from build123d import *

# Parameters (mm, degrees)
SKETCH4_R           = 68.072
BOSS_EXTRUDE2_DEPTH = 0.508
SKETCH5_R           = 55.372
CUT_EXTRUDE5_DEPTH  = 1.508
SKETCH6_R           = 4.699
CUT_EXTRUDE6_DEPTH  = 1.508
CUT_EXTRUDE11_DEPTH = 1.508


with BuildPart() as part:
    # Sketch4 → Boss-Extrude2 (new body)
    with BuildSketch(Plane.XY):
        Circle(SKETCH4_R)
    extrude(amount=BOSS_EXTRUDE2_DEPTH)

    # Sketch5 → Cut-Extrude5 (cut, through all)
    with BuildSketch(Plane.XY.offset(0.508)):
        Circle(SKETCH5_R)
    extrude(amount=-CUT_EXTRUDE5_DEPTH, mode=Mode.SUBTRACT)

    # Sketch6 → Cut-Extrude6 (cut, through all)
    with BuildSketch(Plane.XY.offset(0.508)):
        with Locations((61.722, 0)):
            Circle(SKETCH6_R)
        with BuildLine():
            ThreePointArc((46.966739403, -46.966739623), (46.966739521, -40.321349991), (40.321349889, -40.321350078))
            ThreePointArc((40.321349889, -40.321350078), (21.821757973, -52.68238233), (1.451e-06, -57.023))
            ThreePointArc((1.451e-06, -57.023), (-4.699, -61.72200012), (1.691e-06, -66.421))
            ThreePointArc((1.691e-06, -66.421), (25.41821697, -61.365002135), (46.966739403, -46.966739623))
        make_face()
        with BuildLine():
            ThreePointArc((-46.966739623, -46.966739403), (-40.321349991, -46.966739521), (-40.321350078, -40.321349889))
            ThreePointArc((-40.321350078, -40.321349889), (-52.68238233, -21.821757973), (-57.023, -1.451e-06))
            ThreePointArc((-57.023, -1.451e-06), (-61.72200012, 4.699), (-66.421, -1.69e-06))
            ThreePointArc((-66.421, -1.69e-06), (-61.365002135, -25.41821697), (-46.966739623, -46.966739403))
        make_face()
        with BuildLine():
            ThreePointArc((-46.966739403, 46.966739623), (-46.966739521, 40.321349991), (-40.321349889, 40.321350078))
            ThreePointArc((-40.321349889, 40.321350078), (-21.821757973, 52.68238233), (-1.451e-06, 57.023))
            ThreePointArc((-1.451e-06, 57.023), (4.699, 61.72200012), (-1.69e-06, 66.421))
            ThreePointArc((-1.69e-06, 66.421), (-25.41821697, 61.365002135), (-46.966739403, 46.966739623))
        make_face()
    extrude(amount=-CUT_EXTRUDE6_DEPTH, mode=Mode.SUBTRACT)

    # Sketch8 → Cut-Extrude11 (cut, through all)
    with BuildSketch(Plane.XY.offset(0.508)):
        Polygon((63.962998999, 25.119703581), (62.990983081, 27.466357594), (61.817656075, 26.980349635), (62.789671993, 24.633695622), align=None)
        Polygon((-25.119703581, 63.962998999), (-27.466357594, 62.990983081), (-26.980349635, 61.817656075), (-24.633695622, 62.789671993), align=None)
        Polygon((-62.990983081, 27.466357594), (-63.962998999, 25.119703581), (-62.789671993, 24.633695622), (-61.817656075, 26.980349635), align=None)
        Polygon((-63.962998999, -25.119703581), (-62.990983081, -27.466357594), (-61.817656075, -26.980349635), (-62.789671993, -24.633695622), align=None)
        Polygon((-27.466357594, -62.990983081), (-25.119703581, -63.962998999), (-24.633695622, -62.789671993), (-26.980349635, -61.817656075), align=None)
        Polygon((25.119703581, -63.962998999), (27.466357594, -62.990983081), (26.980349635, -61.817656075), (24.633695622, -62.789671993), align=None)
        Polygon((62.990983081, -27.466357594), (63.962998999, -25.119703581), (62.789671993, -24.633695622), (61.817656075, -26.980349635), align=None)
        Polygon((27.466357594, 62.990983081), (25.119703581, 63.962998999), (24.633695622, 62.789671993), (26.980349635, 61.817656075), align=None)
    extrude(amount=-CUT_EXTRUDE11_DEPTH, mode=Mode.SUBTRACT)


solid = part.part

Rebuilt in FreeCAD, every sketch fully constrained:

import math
import FreeCAD as App
import Part
import Sketcher

V = App.Vector
Q = App.Units.Quantity

doc = App.newDocument("Part")
body = doc.addObject("PartDesign::Body", "Body")

sketch1 = body.newObject("Sketcher::SketchObject", "Sketch")
sketch1.AttachmentSupport = (doc.getObject("XY_Plane"), [""])
sketch1.MapMode = "FlatFace"
sketch1.addGeometry(Part.Circle(V(0, 0, 0), V(0, 0, 1), 68), False)
sketch1.addConstraint([
    Sketcher.Constraint("Coincident", 0, 3, -1, 1),
    Sketcher.Constraint("Diameter", 0, Q("5.36 in")),
])
pad1 = body.newObject("PartDesign::Pad", "Pad")
pad1.Profile = sketch1
pad1.Length = Q("0.02 in")

sketch2 = body.newObject("Sketcher::SketchObject", "Sketch001")
sketch2.AttachmentSupport = (doc.getObject("XY_Plane"), [""])
sketch2.MapMode = "FlatFace"
sketch2.AttachmentOffset = App.Placement(V(0, 0, 0.02 * 25.4), App.Rotation())
sketch2.addGeometry(Part.Circle(V(0, 0, 0), V(0, 0, 1), 55), False)
sketch2.addConstraint([
    Sketcher.Constraint("Coincident", 0, 3, -1, 1),
    Sketcher.Constraint("Diameter", 0, Q("4.36 in")),
])
pocket1 = body.newObject("PartDesign::Pocket", "Pocket")
pocket1.Profile = sketch2
pocket1.Type = "ThroughAll"

sketch3 = body.newObject("Sketcher::SketchObject", "Sketch002")
sketch3.AttachmentSupport = (doc.getObject("XY_Plane"), [""])
sketch3.MapMode = "FlatFace"
sketch3.AttachmentOffset = App.Placement(V(0, 0, 0.02 * 25.4), App.Rotation())
sketch3.addGeometry([
    Part.Circle(V(61.7, 0, 0), V(0, 0, 1), 4.7),
    Part.ArcOfCircle(Part.Circle(V(43.6, -43.6, 0), V(0, 0, 1), 4.7), math.radians(-45), math.radians(135)),
    Part.ArcOfCircle(Part.Circle(V(0, 0, 0), V(0, 0, 1), 57), math.radians(-90), math.radians(-45)),
    Part.ArcOfCircle(Part.Circle(V(0, -61.7, 0), V(0, 0, 1), 4.7), math.radians(90), math.radians(270)),
    Part.ArcOfCircle(Part.Circle(V(0, 0, 0), V(0, 0, 1), 66.4), math.radians(-90), math.radians(-45)),
    Part.ArcOfCircle(Part.Circle(V(-43.6, -43.6, 0), V(0, 0, 1), 4.7), math.radians(-135), math.radians(45)),
    Part.ArcOfCircle(Part.Circle(V(0, 0, 0), V(0, 0, 1), 57), math.radians(-180), math.radians(-135)),
    Part.ArcOfCircle(Part.Circle(V(-61.7, 0, 0), V(0, 0, 1), 4.7), math.radians(0), math.radians(180)),
    Part.ArcOfCircle(Part.Circle(V(0, 0, 0), V(0, 0, 1), 66.4), math.radians(-180), math.radians(-135)),
    Part.ArcOfCircle(Part.Circle(V(-43.6, 43.6, 0), V(0, 0, 1), 4.7), math.radians(135), math.radians(315)),
    Part.ArcOfCircle(Part.Circle(V(0, 0, 0), V(0, 0, 1), 57), math.radians(90), math.radians(135)),
    Part.ArcOfCircle(Part.Circle(V(0, 61.7, 0), V(0, 0, 1), 4.7), math.radians(-90), math.radians(90)),
    Part.ArcOfCircle(Part.Circle(V(0, 0, 0), V(0, 0, 1), 66.4), math.radians(90), math.radians(135)),
], False)
sketch3.addConstraint([
    Sketcher.Constraint("Tangent", 1, 2, 2, 2),
    Sketcher.Constraint("Tangent", 2, 1, 3, 1),
    Sketcher.Constraint("Tangent", 3, 2, 4, 1),
    Sketcher.Constraint("Tangent", 4, 2, 1, 1),
    Sketcher.Constraint("Tangent", 5, 2, 6, 2),
    Sketcher.Constraint("Tangent", 6, 1, 7, 1),
    Sketcher.Constraint("Tangent", 7, 2, 8, 1),
    Sketcher.Constraint("Tangent", 8, 2, 5, 1),
    Sketcher.Constraint("Tangent", 9, 2, 10, 2),
    Sketcher.Constraint("Tangent", 10, 1, 11, 1),
    Sketcher.Constraint("Tangent", 11, 2, 12, 1),
    Sketcher.Constraint("Tangent", 12, 2, 9, 1),
    Sketcher.Constraint("Coincident", 2, 3, -1, 1),
    Sketcher.Constraint("Coincident", 4, 3, -1, 1),
    Sketcher.Constraint("Coincident", 6, 3, -1, 1),
    Sketcher.Constraint("Coincident", 8, 3, -1, 1),
    Sketcher.Constraint("Coincident", 10, 3, -1, 1),
    Sketcher.Constraint("Coincident", 12, 3, -1, 1),
    Sketcher.Constraint("Equal", 0, 1),
    Sketcher.Constraint("Equal", 3, 5),
    Sketcher.Constraint("Equal", 2, 6),
    Sketcher.Constraint("Equal", 7, 9),
    Sketcher.Constraint("Equal", 6, 10),
    Sketcher.Constraint("Symmetric", 0, 3, 7, 3, -1, 1),
    Sketcher.Constraint("PointOnObject", 0, 3, -1),
    Sketcher.Constraint("PointOnObject", 3, 3, -2),
    Sketcher.Constraint("PointOnObject", 11, 3, -2),
    Sketcher.Constraint("Horizontal", 1, 3, 5, 3),
    Sketcher.Constraint("Vertical", 5, 3, 9, 3),
    Sketcher.Constraint("Diameter", 0, Q("0.37 in")),
    Sketcher.Constraint("Radius", 2, Q("2.245 in")),
    Sketcher.Constraint("DistanceX", -1, 1, 1, 2, 40.32135),
])
pocket2 = body.newObject("PartDesign::Pocket", "Pocket001")
pocket2.Profile = sketch3
pocket2.Type = "ThroughAll"

sketch4 = body.newObject("Sketcher::SketchObject", "Sketch003")
sketch4.AttachmentSupport = (doc.getObject("XY_Plane"), [""])
sketch4.MapMode = "FlatFace"
sketch4.AttachmentOffset = App.Placement(V(0, 0, 0.02 * 25.4), App.Rotation())
sketch4.addGeometry([
    Part.LineSegment(V(64, 25.1, 0), V(63, 27.5, 0)),
    Part.LineSegment(V(63, 27.5, 0), V(61.8, 27, 0)),
    Part.LineSegment(V(61.8, 27, 0), V(62.8, 24.6, 0)),
    Part.LineSegment(V(62.8, 24.6, 0), V(64, 25.1, 0)),
    Part.LineSegment(V(-25.1, 64, 0), V(-27.5, 63, 0)),
    Part.LineSegment(V(-27.5, 63, 0), V(-27, 61.8, 0)),
    Part.LineSegment(V(-27, 61.8, 0), V(-24.6, 62.8, 0)),
    Part.LineSegment(V(-24.6, 62.8, 0), V(-25.1, 64, 0)),
    Part.LineSegment(V(-63, 27.5, 0), V(-64, 25.1, 0)),
    Part.LineSegment(V(-64, 25.1, 0), V(-62.8, 24.6, 0)),
    Part.LineSegment(V(-62.8, 24.6, 0), V(-61.8, 27, 0)),
    Part.LineSegment(V(-61.8, 27, 0), V(-63, 27.5, 0)),
    Part.LineSegment(V(-64, -25.1, 0), V(-63, -27.5, 0)),
    Part.LineSegment(V(-63, -27.5, 0), V(-61.8, -27, 0)),
    Part.LineSegment(V(-61.8, -27, 0), V(-62.8, -24.6, 0)),
    Part.LineSegment(V(-62.8, -24.6, 0), V(-64, -25.1, 0)),
    Part.LineSegment(V(-27.5, -63, 0), V(-25.1, -64, 0)),
    Part.LineSegment(V(-25.1, -64, 0), V(-24.6, -62.8, 0)),
    Part.LineSegment(V(-24.6, -62.8, 0), V(-27, -61.8, 0)),
    Part.LineSegment(V(-27, -61.8, 0), V(-27.5, -63, 0)),
    Part.LineSegment(V(25.1, -64, 0), V(27.5, -63, 0)),
    Part.LineSegment(V(27.5, -63, 0), V(27, -61.8, 0)),
    Part.LineSegment(V(27, -61.8, 0), V(24.6, -62.8, 0)),
    Part.LineSegment(V(24.6, -62.8, 0), V(25.1, -64, 0)),
    Part.LineSegment(V(63, -27.5, 0), V(64, -25.1, 0)),
    Part.LineSegment(V(64, -25.1, 0), V(62.8, -24.6, 0)),
    Part.LineSegment(V(62.8, -24.6, 0), V(61.8, -27, 0)),
    Part.LineSegment(V(61.8, -27, 0), V(63, -27.5, 0)),
    Part.LineSegment(V(27.5, 63, 0), V(25.1, 64, 0)),
    Part.LineSegment(V(25.1, 64, 0), V(24.6, 62.8, 0)),
    Part.LineSegment(V(24.6, 62.8, 0), V(27, 61.8, 0)),
    Part.LineSegment(V(27, 61.8, 0), V(27.5, 63, 0)),
], False)
sketch4.addConstraint([
    Sketcher.Constraint("Coincident", 0, 2, 1, 1),
    Sketcher.Constraint("Coincident", 1, 2, 2, 1),
    Sketcher.Constraint("Coincident", 2, 2, 3, 1),
    Sketcher.Constraint("Coincident", 3, 2, 0, 1),
    Sketcher.Constraint("Coincident", 4, 2, 5, 1),
    Sketcher.Constraint("Coincident", 5, 2, 6, 1),
    Sketcher.Constraint("Coincident", 6, 2, 7, 1),
    Sketcher.Constraint("Coincident", 7, 2, 4, 1),
    Sketcher.Constraint("Coincident", 8, 2, 9, 1),
    Sketcher.Constraint("Coincident", 9, 2, 10, 1),
    Sketcher.Constraint("Coincident", 10, 2, 11, 1),
    Sketcher.Constraint("Coincident", 11, 2, 8, 1),
    Sketcher.Constraint("Coincident", 12, 2, 13, 1),
    Sketcher.Constraint("Coincident", 13, 2, 14, 1),
    Sketcher.Constraint("Coincident", 14, 2, 15, 1),
    Sketcher.Constraint("Coincident", 15, 2, 12, 1),
    Sketcher.Constraint("Coincident", 16, 2, 17, 1),
    Sketcher.Constraint("Coincident", 17, 2, 18, 1),
    Sketcher.Constraint("Coincident", 18, 2, 19, 1),
    Sketcher.Constraint("Coincident", 19, 2, 16, 1),
    Sketcher.Constraint("Coincident", 20, 2, 21, 1),
    Sketcher.Constraint("Coincident", 21, 2, 22, 1),
    Sketcher.Constraint("Coincident", 22, 2, 23, 1),
    Sketcher.Constraint("Coincident", 23, 2, 20, 1),
    Sketcher.Constraint("Coincident", 24, 2, 25, 1),
    Sketcher.Constraint("Coincident", 25, 2, 26, 1),
    Sketcher.Constraint("Coincident", 26, 2, 27, 1),
    Sketcher.Constraint("Coincident", 27, 2, 24, 1),
    Sketcher.Constraint("Coincident", 28, 2, 29, 1),
    Sketcher.Constraint("Coincident", 29, 2, 30, 1),
    Sketcher.Constraint("Coincident", 30, 2, 31, 1),
    Sketcher.Constraint("Coincident", 31, 2, 28, 1),
    Sketcher.Constraint("Symmetric", 0, 2, 12, 2, -1, 1),
    Sketcher.Constraint("Symmetric", 1, 2, 13, 2, -1, 1),
    Sketcher.Constraint("Symmetric", 2, 2, 14, 2, -1, 1),
    Sketcher.Constraint("Symmetric", 3, 2, 15, 2, -1, 1),
    Sketcher.Constraint("Symmetric", 4, 2, 20, 2, -1, 1),
    Sketcher.Constraint("Symmetric", 5, 2, 21, 2, -1, 1),
    Sketcher.Constraint("Symmetric", 6, 2, 22, 2, -1, 1),
    Sketcher.Constraint("Symmetric", 7, 2, 23, 2, -1, 1),
    Sketcher.Constraint("Symmetric", 8, 2, 24, 2, -1, 1),
    Sketcher.Constraint("Symmetric", 9, 2, 25, 2, -1, 1),
    Sketcher.Constraint("Symmetric", 10, 2, 26, 2, -1, 1),
    Sketcher.Constraint("Symmetric", 11, 2, 27, 2, -1, 1),
    Sketcher.Constraint("Symmetric", 16, 2, 28, 2, -1, 1),
    Sketcher.Constraint("Symmetric", 17, 2, 29, 2, -1, 1),
    Sketcher.Constraint("Symmetric", 18, 2, 30, 2, -1, 1),
    Sketcher.Constraint("Symmetric", 19, 2, 31, 2, -1, 1),
    Sketcher.Constraint("Symmetric", 3, 2, 8, 2, -2),
    Sketcher.Constraint("Symmetric", 2, 2, 9, 2, -2),
    Sketcher.Constraint("Symmetric", 1, 2, 10, 2, -2),
    Sketcher.Constraint("Symmetric", 0, 2, 11, 2, -2),
    Sketcher.Constraint("Symmetric", 19, 2, 20, 2, -2),
    Sketcher.Constraint("Symmetric", 18, 2, 21, 2, -2),
    Sketcher.Constraint("Symmetric", 17, 2, 22, 2, -2),
    Sketcher.Constraint("Symmetric", 16, 2, 23, 2, -2),
    Sketcher.Constraint("Perpendicular", 0, 1),
    Sketcher.Constraint("Perpendicular", 1, 2),
    Sketcher.Constraint("Perpendicular", 2, 3),
    Sketcher.Constraint("Parallel", 3, 4),
    Sketcher.Constraint("Perpendicular", 4, 5),
    Sketcher.Constraint("Perpendicular", 5, 6),
    Sketcher.Constraint("Perpendicular", 6, 7),
    Sketcher.Constraint("Equal", 2, 4),
    Sketcher.Constraint("Equal", 3, 5),
    Sketcher.Constraint("Distance", 0, Q("0.1 in")),
    Sketcher.Constraint("Angle", 0, Q("112.5 deg")),
    Sketcher.Constraint("Distance", 1, Q("0.05 in")),
    Sketcher.Constraint("DistanceX", -1, 1, 3, 2, 63.962999),
    Sketcher.Constraint("DistanceY", -1, 1, 7, 2, 63.962999),
    Sketcher.Constraint("DistanceY", 0, 2, 5, 2, 34.351298),
    Sketcher.Constraint("DistanceX", 10, 2, 4, 2, 34.351298),
])
pocket3 = body.newObject("PartDesign::Pocket", "Pocket002")
pocket3.Profile = sketch4
pocket3.Type = "ThroughAll"

doc.recompute()
